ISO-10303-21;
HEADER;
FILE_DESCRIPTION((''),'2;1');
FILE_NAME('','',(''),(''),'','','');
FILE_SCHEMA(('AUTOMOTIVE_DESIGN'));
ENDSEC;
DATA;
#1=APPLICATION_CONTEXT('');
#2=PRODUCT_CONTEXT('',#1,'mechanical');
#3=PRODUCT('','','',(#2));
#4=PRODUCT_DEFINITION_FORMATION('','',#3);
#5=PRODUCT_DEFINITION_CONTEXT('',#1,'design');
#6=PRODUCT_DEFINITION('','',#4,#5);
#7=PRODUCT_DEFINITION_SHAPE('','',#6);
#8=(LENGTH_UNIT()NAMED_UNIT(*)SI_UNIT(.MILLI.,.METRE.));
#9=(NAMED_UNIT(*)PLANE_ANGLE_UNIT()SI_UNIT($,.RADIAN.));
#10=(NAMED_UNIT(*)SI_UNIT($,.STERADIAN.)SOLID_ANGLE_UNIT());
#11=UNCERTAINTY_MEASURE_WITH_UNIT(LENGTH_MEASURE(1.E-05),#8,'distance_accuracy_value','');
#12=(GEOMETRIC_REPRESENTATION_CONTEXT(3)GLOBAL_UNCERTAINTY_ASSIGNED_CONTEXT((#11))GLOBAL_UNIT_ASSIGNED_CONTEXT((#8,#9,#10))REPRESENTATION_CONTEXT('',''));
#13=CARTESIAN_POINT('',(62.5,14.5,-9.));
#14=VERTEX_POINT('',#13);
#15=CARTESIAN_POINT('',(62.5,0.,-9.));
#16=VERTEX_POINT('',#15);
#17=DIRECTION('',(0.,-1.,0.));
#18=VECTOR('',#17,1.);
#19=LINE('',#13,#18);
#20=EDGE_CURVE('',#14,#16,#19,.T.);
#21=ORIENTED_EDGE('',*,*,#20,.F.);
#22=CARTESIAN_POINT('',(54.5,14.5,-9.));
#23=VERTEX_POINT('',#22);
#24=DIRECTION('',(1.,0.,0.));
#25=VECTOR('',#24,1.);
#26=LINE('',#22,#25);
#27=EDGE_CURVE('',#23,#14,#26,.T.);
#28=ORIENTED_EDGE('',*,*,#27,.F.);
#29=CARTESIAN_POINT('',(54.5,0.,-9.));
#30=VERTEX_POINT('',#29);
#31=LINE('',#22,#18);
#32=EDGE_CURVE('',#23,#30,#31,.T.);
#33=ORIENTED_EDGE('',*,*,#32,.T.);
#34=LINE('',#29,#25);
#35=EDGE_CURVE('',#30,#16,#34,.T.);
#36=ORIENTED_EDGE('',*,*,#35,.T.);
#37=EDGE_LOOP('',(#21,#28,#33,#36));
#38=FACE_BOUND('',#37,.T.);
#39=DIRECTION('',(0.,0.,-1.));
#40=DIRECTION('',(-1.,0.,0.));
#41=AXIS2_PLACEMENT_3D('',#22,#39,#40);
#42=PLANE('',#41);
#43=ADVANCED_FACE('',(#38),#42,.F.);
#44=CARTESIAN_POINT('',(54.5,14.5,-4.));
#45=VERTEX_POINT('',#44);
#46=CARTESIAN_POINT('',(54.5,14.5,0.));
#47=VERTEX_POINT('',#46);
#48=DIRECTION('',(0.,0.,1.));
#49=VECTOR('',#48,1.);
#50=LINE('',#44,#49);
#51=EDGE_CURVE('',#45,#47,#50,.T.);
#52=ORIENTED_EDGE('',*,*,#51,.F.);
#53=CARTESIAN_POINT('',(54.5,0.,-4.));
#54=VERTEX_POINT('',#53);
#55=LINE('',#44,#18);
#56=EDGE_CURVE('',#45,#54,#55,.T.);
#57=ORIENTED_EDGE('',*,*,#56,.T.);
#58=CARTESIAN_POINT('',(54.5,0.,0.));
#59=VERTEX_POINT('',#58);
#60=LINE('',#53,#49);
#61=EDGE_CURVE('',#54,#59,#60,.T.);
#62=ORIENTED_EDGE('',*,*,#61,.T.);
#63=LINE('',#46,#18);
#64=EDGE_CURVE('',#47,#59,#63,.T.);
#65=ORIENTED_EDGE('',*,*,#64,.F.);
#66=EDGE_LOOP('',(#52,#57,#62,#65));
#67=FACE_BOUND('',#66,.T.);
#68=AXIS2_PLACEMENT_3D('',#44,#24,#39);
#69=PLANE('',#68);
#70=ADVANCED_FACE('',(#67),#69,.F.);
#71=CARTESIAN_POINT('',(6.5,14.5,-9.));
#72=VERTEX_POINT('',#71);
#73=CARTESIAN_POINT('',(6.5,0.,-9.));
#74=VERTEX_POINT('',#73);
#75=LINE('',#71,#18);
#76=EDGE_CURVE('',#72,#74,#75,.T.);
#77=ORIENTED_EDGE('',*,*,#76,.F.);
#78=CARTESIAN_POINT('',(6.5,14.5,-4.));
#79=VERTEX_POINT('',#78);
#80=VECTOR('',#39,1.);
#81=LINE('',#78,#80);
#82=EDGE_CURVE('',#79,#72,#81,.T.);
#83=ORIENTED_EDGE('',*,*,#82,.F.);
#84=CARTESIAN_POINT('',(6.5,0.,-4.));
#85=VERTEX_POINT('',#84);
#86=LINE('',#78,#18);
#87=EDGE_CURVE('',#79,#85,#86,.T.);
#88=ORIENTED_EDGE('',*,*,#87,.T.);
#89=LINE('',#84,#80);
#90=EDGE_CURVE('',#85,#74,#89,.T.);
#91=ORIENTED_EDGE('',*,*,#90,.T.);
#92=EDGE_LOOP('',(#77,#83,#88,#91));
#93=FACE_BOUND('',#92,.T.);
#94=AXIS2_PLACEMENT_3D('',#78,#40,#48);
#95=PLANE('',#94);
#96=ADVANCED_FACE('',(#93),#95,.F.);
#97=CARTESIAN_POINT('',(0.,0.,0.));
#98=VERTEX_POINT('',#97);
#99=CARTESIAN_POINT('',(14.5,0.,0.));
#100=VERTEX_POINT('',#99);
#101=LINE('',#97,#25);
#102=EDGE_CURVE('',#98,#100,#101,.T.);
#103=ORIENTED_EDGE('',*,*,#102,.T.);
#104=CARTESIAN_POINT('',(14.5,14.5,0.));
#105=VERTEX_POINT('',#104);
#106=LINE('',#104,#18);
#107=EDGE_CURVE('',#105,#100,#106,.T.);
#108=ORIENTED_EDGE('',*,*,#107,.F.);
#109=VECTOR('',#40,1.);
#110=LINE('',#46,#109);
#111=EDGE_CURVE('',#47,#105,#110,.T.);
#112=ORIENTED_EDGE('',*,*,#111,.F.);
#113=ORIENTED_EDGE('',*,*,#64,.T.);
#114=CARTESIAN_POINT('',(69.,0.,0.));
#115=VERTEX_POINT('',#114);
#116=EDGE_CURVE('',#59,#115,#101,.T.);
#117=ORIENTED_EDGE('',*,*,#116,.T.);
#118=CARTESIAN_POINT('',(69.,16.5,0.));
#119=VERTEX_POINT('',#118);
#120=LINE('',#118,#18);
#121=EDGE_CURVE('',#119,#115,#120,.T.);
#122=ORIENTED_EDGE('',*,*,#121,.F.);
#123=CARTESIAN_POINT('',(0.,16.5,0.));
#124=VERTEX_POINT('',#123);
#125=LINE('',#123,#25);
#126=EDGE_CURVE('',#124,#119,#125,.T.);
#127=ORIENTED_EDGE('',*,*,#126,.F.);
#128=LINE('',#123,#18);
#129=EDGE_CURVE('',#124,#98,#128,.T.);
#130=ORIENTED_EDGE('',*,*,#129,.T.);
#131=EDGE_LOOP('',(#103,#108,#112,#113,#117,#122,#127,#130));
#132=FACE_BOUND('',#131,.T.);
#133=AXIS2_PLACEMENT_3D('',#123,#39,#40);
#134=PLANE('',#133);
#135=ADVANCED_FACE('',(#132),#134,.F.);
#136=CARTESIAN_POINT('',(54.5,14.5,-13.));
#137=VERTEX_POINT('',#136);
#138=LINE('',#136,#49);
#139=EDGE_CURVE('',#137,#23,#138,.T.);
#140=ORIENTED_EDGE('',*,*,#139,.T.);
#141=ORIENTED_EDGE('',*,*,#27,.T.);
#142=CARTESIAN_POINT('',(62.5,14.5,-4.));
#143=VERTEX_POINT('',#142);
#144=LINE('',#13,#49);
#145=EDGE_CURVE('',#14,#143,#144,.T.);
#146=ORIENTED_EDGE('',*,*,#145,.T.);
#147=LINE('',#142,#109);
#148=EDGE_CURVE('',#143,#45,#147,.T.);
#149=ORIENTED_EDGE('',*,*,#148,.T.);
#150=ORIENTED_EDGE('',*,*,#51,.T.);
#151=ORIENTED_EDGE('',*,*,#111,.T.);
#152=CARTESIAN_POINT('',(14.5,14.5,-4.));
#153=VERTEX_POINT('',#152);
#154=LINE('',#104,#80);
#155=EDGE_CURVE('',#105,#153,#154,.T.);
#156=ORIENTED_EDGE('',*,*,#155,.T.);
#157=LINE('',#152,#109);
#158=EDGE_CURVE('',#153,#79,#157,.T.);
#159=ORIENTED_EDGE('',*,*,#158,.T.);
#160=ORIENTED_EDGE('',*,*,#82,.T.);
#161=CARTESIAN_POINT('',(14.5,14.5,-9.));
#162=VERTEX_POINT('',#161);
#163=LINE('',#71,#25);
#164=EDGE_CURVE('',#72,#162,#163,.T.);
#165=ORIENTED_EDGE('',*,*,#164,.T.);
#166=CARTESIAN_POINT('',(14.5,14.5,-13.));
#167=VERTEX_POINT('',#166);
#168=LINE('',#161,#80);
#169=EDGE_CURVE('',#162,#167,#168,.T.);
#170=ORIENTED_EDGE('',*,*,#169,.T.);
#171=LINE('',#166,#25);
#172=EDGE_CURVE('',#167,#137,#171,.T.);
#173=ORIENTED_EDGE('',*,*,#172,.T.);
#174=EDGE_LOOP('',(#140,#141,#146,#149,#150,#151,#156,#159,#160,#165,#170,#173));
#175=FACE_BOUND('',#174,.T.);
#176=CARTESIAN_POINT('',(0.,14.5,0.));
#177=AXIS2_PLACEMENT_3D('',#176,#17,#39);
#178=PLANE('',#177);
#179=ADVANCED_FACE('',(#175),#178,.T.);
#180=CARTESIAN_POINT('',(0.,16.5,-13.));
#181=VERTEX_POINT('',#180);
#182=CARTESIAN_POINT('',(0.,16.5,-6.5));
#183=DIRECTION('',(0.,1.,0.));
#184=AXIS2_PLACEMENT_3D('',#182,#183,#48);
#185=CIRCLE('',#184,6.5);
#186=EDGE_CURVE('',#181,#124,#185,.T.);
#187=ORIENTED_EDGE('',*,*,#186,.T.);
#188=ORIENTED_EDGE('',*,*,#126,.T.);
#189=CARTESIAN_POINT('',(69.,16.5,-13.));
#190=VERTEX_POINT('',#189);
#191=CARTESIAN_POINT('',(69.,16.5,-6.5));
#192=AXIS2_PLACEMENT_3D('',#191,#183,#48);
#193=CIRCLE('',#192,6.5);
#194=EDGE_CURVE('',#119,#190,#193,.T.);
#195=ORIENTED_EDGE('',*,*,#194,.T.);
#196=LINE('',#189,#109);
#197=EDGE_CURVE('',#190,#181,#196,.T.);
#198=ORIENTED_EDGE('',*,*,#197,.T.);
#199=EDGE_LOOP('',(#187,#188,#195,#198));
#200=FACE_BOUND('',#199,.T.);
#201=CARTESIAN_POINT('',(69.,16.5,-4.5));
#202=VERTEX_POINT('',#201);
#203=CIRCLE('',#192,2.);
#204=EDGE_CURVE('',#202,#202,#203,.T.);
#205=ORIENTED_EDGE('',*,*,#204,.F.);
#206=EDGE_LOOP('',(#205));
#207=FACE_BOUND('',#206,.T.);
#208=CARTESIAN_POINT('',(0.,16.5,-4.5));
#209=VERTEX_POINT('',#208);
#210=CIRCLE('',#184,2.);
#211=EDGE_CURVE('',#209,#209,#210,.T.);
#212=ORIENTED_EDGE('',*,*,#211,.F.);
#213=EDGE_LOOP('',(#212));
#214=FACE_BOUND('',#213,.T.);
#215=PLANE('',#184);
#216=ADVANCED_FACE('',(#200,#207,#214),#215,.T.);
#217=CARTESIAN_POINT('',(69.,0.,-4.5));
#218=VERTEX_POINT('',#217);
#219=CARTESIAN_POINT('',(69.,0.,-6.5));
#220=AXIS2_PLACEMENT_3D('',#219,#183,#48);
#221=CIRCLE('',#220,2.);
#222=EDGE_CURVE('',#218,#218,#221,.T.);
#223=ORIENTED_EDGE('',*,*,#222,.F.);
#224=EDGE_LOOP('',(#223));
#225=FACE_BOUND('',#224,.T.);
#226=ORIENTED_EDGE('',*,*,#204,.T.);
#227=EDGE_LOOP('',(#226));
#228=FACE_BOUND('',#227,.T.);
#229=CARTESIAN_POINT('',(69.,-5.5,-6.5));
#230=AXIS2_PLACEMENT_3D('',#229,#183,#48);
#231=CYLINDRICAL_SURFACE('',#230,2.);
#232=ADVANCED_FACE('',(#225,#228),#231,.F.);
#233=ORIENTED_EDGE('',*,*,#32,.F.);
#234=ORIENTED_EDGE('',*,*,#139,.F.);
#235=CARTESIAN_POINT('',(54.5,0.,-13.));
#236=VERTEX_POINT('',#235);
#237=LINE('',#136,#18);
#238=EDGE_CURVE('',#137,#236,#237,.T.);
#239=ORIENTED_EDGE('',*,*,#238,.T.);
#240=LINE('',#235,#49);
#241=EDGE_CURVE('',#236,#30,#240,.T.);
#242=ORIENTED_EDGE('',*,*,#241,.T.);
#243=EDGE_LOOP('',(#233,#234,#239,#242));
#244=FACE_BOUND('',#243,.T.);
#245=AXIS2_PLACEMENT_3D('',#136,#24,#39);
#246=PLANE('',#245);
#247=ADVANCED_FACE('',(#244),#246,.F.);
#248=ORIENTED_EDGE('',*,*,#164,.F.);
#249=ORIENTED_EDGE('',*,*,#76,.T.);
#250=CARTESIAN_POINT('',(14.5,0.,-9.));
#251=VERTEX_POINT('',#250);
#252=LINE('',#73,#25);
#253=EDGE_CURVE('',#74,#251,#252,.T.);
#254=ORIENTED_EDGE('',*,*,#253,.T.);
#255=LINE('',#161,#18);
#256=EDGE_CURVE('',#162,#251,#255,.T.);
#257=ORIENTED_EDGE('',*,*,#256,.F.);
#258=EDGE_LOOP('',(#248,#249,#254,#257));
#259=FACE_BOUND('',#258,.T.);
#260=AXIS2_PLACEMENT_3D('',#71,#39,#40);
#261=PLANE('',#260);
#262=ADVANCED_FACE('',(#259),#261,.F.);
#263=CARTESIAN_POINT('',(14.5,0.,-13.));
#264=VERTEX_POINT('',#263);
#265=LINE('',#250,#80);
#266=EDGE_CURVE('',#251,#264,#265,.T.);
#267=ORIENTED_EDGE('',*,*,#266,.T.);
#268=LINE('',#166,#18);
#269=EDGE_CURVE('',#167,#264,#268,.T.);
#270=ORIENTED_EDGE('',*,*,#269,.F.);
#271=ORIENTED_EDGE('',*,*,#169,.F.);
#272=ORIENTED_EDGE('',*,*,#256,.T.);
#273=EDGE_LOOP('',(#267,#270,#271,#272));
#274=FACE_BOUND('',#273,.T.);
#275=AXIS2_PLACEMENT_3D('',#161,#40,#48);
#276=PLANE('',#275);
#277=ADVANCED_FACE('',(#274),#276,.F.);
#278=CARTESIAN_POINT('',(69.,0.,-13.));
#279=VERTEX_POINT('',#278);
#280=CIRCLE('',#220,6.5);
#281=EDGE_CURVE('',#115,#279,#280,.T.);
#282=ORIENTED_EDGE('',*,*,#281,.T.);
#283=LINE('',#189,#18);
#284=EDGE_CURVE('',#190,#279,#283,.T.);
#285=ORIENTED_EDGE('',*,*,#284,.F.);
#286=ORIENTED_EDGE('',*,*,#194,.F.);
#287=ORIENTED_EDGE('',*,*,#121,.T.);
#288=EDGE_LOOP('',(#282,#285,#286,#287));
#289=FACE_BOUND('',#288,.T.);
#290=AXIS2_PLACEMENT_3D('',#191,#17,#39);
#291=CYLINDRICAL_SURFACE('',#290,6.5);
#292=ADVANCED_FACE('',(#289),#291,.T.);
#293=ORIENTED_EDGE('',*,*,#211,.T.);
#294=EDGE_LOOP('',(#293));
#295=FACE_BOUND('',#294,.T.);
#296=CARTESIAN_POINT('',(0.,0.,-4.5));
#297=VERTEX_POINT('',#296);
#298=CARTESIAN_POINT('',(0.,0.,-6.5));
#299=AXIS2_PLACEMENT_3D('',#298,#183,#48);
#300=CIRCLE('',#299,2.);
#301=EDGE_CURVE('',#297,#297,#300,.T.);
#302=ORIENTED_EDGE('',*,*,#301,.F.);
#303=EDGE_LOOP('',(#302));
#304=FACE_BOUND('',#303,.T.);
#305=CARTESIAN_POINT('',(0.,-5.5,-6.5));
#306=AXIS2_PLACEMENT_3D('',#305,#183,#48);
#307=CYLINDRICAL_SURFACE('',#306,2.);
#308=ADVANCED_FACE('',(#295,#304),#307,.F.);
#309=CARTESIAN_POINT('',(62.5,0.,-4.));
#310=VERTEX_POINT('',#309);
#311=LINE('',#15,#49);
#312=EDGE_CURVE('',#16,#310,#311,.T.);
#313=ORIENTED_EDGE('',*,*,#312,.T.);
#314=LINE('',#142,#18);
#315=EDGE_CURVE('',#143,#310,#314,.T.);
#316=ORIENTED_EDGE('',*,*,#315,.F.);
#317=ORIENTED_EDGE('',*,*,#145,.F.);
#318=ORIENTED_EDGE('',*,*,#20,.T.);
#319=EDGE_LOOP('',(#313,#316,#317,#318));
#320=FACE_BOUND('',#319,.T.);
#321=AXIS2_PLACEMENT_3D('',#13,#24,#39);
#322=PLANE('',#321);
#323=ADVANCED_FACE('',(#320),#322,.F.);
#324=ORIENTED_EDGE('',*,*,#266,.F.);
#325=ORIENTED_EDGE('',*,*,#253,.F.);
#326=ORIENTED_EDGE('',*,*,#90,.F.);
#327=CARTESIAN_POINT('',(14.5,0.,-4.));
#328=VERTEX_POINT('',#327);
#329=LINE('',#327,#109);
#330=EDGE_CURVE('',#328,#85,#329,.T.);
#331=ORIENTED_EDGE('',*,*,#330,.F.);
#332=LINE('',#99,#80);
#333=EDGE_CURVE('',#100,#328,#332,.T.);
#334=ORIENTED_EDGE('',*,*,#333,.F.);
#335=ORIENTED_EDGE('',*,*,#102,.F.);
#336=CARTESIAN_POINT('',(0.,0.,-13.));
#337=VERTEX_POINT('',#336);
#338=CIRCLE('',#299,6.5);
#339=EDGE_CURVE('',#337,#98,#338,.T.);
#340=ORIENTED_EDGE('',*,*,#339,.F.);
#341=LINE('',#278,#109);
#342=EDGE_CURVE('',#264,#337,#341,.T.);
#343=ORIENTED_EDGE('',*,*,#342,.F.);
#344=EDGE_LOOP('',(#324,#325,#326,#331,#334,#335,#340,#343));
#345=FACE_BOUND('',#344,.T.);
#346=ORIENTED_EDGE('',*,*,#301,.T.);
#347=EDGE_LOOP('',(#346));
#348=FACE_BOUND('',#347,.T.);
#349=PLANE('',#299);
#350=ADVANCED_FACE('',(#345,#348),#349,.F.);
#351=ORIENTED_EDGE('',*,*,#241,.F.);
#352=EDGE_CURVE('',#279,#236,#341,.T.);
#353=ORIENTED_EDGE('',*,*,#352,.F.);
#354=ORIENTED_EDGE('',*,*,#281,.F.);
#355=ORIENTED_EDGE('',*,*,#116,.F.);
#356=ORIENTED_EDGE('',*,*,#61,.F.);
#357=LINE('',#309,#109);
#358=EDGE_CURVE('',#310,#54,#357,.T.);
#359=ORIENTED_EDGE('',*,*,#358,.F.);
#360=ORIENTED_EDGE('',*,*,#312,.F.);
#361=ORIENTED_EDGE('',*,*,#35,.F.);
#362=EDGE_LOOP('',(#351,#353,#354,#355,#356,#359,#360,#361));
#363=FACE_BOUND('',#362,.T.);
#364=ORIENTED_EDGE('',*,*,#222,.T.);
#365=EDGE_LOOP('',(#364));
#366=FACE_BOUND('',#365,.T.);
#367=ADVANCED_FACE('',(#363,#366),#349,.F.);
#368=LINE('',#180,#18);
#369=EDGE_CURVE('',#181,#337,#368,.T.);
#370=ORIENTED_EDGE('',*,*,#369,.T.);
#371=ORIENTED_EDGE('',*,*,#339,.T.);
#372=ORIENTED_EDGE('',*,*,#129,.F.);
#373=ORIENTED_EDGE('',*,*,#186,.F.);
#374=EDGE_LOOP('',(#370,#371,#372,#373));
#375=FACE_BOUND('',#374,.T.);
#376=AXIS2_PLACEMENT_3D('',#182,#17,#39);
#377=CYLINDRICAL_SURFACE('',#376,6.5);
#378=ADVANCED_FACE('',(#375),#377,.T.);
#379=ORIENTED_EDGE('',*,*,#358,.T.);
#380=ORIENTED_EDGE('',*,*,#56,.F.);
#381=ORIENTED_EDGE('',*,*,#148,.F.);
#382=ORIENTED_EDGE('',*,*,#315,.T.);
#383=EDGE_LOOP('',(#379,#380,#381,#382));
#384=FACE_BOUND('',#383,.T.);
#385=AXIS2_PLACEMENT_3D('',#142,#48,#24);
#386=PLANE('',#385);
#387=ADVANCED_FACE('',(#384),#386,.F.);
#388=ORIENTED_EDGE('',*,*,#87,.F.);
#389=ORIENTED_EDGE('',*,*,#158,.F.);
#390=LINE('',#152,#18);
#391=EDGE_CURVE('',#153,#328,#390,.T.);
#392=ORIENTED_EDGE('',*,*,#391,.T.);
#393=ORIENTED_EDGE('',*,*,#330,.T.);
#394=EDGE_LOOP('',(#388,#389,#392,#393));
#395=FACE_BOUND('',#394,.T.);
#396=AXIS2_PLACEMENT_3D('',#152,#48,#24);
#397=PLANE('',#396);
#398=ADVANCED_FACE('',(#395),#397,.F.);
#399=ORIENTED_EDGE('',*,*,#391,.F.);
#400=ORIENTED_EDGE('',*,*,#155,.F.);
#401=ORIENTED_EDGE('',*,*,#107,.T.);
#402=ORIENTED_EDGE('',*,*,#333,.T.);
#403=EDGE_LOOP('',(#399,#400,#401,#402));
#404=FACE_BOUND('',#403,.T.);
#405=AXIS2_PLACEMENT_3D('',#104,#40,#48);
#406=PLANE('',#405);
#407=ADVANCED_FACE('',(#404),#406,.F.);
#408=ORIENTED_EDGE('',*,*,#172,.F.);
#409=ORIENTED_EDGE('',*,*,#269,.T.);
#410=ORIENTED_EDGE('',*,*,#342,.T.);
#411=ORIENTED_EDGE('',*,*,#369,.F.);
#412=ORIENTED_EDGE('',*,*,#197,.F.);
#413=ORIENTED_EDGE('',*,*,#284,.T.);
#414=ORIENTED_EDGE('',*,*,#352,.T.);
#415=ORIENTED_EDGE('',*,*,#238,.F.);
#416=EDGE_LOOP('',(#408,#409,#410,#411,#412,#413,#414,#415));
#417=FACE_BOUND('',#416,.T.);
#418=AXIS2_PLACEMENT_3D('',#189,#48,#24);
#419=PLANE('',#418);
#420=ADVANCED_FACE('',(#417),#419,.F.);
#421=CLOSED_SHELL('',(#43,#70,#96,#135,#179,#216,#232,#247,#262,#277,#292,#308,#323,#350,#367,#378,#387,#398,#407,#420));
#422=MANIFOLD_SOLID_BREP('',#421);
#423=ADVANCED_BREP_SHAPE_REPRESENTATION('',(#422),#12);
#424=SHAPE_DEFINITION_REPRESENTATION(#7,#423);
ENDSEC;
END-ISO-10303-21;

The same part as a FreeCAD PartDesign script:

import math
import FreeCAD as App
import Part
import Sketcher

V = App.Vector
Q = App.Units.Quantity


def add_polygon(sketch, points):
    """Adds a closed chain of lines whose ends are joined by coincident constraints."""
    first, n = sketch.GeometryCount, len(points)
    for a, b in zip(points, points[1:] + points[:1]):
        sketch.addGeometry(Part.LineSegment(App.Vector(*a, 0), App.Vector(*b, 0)), False)
    for i in range(n):
        sketch.addConstraint(Sketcher.Constraint("Coincident", first + i, 2, first + (i + 1) % n, 1))

doc = App.newDocument("Part")
body = doc.addObject("PartDesign::Body", "Body")

sketch1 = doc.addObject("Sketcher::SketchObject", "Sketch")
body.addObject(sketch1)
sketch1.AttachmentSupport = (doc.XZ_Plane, [""])
sketch1.MapMode = "FlatFace"
sketch1.addGeometry([
    Part.LineSegment(V(0, 0, 0), V(69, 0, 0)),
    Part.ArcOfCircle(Part.Circle(V(69, -6, 0), V(0, 0, 1), 6), math.radians(-90), math.radians(90)),
    Part.LineSegment(V(69, -13, 0), V(0, -13, 0)),
    Part.ArcOfCircle(Part.Circle(V(0, -6, 0), V(0, 0, 1), 6), math.radians(90), math.radians(270)),
], False)
sketch1.addConstraint([
    Sketcher.Constraint("Tangent", 0, 2, 1, 2),
    Sketcher.Constraint("Tangent", 1, 1, 2, 1),
    Sketcher.Constraint("Tangent", 2, 2, 3, 2),
    Sketcher.Constraint("Tangent", 3, 1, 0, 1),
    Sketcher.Constraint("Horizontal", 0),
    Sketcher.Constraint("Horizontal", 2),
    Sketcher.Constraint("Coincident", 3, 1, -1, 1),
    Sketcher.Constraint("Radius", 1, Q("6.5 mm")),
    Sketcher.Constraint("DistanceX", 0, 1, 0, 2, Q("69 mm")),
])
pad1 = doc.addObject("PartDesign::Pad", "Pad")
body.addObject(pad1)
pad1.Profile = sketch1
pad1.Length = 16.5
pad1.Reversed = True

sketch2 = doc.addObject("Sketcher::SketchObject", "Sketch001")
body.addObject(sketch2)
sketch2.AttachmentSupport = (doc.XZ_Plane, [""])
sketch2.MapMode = "FlatFace"
sketch2.AttachmentOffset = App.Placement(V(0, 0, -16.5), App.Rotation())
sketch2.addGeometry([
    Part.Circle(V(0, -6.5, 0), V(0, 0, 1), 2),
    Part.Circle(V(69, -6.5, 0), V(0, 0, 1), 2),
], False)
sketch2.addConstraint([
    Sketcher.Constraint("Equal", 0, 1),
    Sketcher.Constraint("PointOnObject", 0, 3, -2),
    Sketcher.Constraint("Horizontal", 0, 3, 1, 3),
    Sketcher.Constraint("Diameter", 0, Q("4 mm")),
    Sketcher.Constraint("DistanceX", -1, 1, 1, 3, Q("69 mm")),
    Sketcher.Constraint("DistanceY", 0, 3, -1, 1, Q("6.5 mm")),
])
pocket1 = doc.addObject("PartDesign::Pocket", "Pocket")
body.addObject(pocket1)
pocket1.Profile = sketch2
pocket1.Length = 22
pocket1.Reversed = True

sketch3 = doc.addObject("Sketcher::SketchObject", "Sketch002")
body.addObject(sketch3)
sketch3.AttachmentSupport = (doc.XZ_Plane, [""])
sketch3.MapMode = "FlatFace"
add_polygon(sketch3, [(54.5, -13), (54.5, -9), (62.5, -9), (62.5, -4), (54.5, -4), (54.5, 0), (14.5, 0), (14.5, -4), (6.5, -4), (6.5, -9), (14.5, -9), (14.5, -13)])
sketch3.addConstraint([
    Sketcher.Constraint("Vertical", 0),
    Sketcher.Constraint("Horizontal", 1),
    Sketcher.Constraint("Vertical", 2),
    Sketcher.Constraint("Horizontal", 3),
    Sketcher.Constraint("Vertical", 4),
    Sketcher.Constraint("Horizontal", 5),
    Sketcher.Constraint("Vertical", 6),
    Sketcher.Constraint("Horizontal", 7),
    Sketcher.Constraint("Vertical", 8),
    Sketcher.Constraint("Horizontal", 9),
    Sketcher.Constraint("Vertical", 10),
    Sketcher.Constraint("Horizontal", 11),
    Sketcher.Constraint("PointOnObject", 4, 2, -1),
    Sketcher.Constraint("Horizontal", 3, 2, 6, 2),
    Sketcher.Constraint("Horizontal", 1, 2, 8, 2),
    Sketcher.Constraint("Vertical", 0, 2, 3, 2),
    Sketcher.Constraint("Vertical", 6, 2, 9, 2),
    Sketcher.Constraint("Equal", 3, 7),
    Sketcher.Constraint("Equal", 0, 4),
    Sketcher.Constraint("DistanceX", 1, 1, 1, 2, Q("8 mm")),
    Sketcher.Constraint("DistanceX", 5, 2, 5, 1, Q("40 mm")),
    Sketcher.Constraint("DistanceY", 0, 1, 0, 2, Q("4 mm")),
    Sketcher.Constraint("DistanceY", 2, 1, 2, 2, Q("5 mm")),
    Sketcher.Constraint("DistanceX", -1, 1, 0, 2, Q("54.5 mm")),
])
pocket2 = doc.addObject("PartDesign::Pocket", "Pocket001")
body.addObject(pocket2)
pocket2.Profile = sketch3
pocket2.Length = 14.5

doc.recompute()
